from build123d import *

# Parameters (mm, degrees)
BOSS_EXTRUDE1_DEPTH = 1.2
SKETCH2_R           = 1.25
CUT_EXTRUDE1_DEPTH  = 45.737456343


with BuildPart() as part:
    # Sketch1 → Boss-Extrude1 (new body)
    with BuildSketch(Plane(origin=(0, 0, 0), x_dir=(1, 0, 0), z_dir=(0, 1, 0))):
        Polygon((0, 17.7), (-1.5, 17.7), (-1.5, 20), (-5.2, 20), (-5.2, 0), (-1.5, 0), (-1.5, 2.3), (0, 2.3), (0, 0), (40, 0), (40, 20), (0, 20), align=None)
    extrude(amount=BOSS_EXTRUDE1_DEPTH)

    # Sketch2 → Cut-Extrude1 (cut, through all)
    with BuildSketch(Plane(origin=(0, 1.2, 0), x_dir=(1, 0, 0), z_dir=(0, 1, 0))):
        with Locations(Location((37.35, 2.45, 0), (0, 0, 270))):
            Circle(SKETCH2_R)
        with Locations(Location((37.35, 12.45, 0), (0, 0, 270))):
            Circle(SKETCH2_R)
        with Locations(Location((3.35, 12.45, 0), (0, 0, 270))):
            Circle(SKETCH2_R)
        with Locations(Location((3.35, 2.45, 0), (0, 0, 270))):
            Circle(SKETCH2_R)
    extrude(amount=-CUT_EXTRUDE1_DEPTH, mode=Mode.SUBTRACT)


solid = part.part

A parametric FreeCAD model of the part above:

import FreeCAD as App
import Part
import Sketcher

doc = App.newDocument("Part")
body = doc.addObject("PartDesign::Body", "Body")

sketch1 = body.newObject("Sketcher::SketchObject", "Sketch")
sketch1.AttachmentSupport = (doc.getObject("XZ_Plane"), [""])
sketch1.MapMode = "FlatFace"
sketch1.addGeometry([
    Part.LineSegment(App.Vector(0, -17.7, 0), App.Vector(-1.5, -17.7, 0)),
    Part.LineSegment(App.Vector(-1.5, -17.7, 0), App.Vector(-1.5, -20, 0)),
    Part.LineSegment(App.Vector(-1.5, -20, 0), App.Vector(-5.2, -20, 0)),
    Part.LineSegment(App.Vector(-5.2, -20, 0), App.Vector(-5.2, 0, 0)),
    Part.LineSegment(App.Vector(-5.2, 0, 0), App.Vector(-1.5, 0, 0)),
    Part.LineSegment(App.Vector(-1.5, 0, 0), App.Vector(-1.5, -2.3, 0)),
    Part.LineSegment(App.Vector(-1.5, -2.3, 0), App.Vector(0, -2.3, 0)),
    Part.LineSegment(App.Vector(0, -2.3, 0), App.Vector(0, 0, 0)),
    Part.LineSegment(App.Vector(0, 0, 0), App.Vector(40, 0, 0)),
    Part.LineSegment(App.Vector(40, 0, 0), App.Vector(40, -20, 0)),
    Part.LineSegment(App.Vector(40, -20, 0), App.Vector(0, -20, 0)),
    Part.LineSegment(App.Vector(0, -20, 0), App.Vector(0, -17.7, 0)),
], False)
sketch1.addConstraint([
    Sketcher.Constraint("Coincident", 0, 2, 1, 1),
    Sketcher.Constraint("Coincident", 1, 2, 2, 1),
    Sketcher.Constraint("Coincident", 2, 2, 3, 1),
    Sketcher.Constraint("Coincident", 3, 2, 4, 1),
    Sketcher.Constraint("Coincident", 4, 2, 5, 1),
    Sketcher.Constraint("Coincident", 5, 2, 6, 1),
    Sketcher.Constraint("Coincident", 6, 2, 7, 1),
    Sketcher.Constraint("Coincident", 7, 2, 8, 1),
    Sketcher.Constraint("Coincident", 8, 2, 9, 1),
    Sketcher.Constraint("Coincident", 9, 2, 10, 1),
    Sketcher.Constraint("Coincident", 10, 2, 11, 1),
    Sketcher.Constraint("Coincident", 11, 2, 0, 1),
    Sketcher.Constraint("Horizontal", 0),
    Sketcher.Constraint("Vertical", 1),
    Sketcher.Constraint("Horizontal", 2),
    Sketcher.Constraint("Vertical", 3),
    Sketcher.Constraint("Horizontal", 4),
    Sketcher.Constraint("Vertical", 5),
    Sketcher.Constraint("Horizontal", 6),
    Sketcher.Constraint("Vertical", 7),
    Sketcher.Constraint("Horizontal", 8),
    Sketcher.Constraint("Vertical", 9),
    Sketcher.Constraint("Horizontal", 10),
    Sketcher.Constraint("Vertical", 11),
    Sketcher.Constraint("Coincident", 7, 2, -1, 1),
    Sketcher.Constraint("PointOnObject", 3, 2, -1),
    Sketcher.Constraint("PointOnObject", 10, 2, -2),
    Sketcher.Constraint("Horizontal", 2, 2, 9, 2),
    Sketcher.Constraint("Vertical", 1, 2, 4, 2),
    Sketcher.Constraint("Equal", 1, 5),
    Sketcher.Constraint("DistanceX", 8, 1, 8, 2, 40.0),
    Sketcher.Constraint("DistanceY", 3, 1, 3, 2, 20.0),
    Sketcher.Constraint("DistanceX", 0, 2, 0, 1, 1.5),
    Sketcher.Constraint("DistanceX", 2, 2, 2, 1, 3.7),
    Sketcher.Constraint("DistanceY", 1, 2, 1, 1, 2.3),
])
pad1 = body.newObject("PartDesign::Pad", "Pad")
pad1.Profile = sketch1
pad1.Length = 1.2
pad1.Reversed = True

sketch2 = body.newObject("Sketcher::SketchObject", "Sketch001")
sketch2.AttachmentSupport = (doc.getObject("XZ_Plane"), [""])
sketch2.MapMode = "FlatFace"
sketch2.AttachmentOffset = App.Placement(App.Vector(0, 0, -1.2), App.Rotation())
sketch2.addGeometry([
    Part.Circle(App.Vector(37.4, -2.5, 0), App.Vector(0, 0, 1), 1.2),
    Part.Circle(App.Vector(37.4, -12.4, 0), App.Vector(0, 0, 1), 1.2),
    Part.Circle(App.Vector(3.4, -12.4, 0), App.Vector(0, 0, 1), 1.2),
    Part.Circle(App.Vector(3.4, -2.5, 0), App.Vector(0, 0, 1), 1.2),
], False)
sketch2.addConstraint([
    Sketcher.Constraint("Equal", 0, 1),
    Sketcher.Constraint("Equal", 1, 2),
    Sketcher.Constraint("Equal", 2, 3),
    Sketcher.Constraint("Horizontal", 1, 3, 2, 3),
    Sketcher.Constraint("Horizontal", 0, 3, 3, 3),
    Sketcher.Constraint("Vertical", 0, 3, 1, 3),
    Sketcher.Constraint("Vertical", 2, 3, 3, 3),
    Sketcher.Constraint("Diameter", 0, 2.5),
    Sketcher.Constraint("DistanceY", 1, 3, 0, 3, 10.0),
    Sketcher.Constraint("DistanceX", 2, 3, 1, 3, 34.0),
    Sketcher.Constraint("DistanceX", -1, 1, 0, 3, 37.35),
    Sketcher.Constraint("DistanceY", 0, 3, -1, 1, 2.45),
])
pocket1 = body.newObject("PartDesign::Pocket", "Pocket")
pocket1.Profile = sketch2
pocket1.Type = "ThroughAll"
pocket1.Reversed = True

doc.recompute()
